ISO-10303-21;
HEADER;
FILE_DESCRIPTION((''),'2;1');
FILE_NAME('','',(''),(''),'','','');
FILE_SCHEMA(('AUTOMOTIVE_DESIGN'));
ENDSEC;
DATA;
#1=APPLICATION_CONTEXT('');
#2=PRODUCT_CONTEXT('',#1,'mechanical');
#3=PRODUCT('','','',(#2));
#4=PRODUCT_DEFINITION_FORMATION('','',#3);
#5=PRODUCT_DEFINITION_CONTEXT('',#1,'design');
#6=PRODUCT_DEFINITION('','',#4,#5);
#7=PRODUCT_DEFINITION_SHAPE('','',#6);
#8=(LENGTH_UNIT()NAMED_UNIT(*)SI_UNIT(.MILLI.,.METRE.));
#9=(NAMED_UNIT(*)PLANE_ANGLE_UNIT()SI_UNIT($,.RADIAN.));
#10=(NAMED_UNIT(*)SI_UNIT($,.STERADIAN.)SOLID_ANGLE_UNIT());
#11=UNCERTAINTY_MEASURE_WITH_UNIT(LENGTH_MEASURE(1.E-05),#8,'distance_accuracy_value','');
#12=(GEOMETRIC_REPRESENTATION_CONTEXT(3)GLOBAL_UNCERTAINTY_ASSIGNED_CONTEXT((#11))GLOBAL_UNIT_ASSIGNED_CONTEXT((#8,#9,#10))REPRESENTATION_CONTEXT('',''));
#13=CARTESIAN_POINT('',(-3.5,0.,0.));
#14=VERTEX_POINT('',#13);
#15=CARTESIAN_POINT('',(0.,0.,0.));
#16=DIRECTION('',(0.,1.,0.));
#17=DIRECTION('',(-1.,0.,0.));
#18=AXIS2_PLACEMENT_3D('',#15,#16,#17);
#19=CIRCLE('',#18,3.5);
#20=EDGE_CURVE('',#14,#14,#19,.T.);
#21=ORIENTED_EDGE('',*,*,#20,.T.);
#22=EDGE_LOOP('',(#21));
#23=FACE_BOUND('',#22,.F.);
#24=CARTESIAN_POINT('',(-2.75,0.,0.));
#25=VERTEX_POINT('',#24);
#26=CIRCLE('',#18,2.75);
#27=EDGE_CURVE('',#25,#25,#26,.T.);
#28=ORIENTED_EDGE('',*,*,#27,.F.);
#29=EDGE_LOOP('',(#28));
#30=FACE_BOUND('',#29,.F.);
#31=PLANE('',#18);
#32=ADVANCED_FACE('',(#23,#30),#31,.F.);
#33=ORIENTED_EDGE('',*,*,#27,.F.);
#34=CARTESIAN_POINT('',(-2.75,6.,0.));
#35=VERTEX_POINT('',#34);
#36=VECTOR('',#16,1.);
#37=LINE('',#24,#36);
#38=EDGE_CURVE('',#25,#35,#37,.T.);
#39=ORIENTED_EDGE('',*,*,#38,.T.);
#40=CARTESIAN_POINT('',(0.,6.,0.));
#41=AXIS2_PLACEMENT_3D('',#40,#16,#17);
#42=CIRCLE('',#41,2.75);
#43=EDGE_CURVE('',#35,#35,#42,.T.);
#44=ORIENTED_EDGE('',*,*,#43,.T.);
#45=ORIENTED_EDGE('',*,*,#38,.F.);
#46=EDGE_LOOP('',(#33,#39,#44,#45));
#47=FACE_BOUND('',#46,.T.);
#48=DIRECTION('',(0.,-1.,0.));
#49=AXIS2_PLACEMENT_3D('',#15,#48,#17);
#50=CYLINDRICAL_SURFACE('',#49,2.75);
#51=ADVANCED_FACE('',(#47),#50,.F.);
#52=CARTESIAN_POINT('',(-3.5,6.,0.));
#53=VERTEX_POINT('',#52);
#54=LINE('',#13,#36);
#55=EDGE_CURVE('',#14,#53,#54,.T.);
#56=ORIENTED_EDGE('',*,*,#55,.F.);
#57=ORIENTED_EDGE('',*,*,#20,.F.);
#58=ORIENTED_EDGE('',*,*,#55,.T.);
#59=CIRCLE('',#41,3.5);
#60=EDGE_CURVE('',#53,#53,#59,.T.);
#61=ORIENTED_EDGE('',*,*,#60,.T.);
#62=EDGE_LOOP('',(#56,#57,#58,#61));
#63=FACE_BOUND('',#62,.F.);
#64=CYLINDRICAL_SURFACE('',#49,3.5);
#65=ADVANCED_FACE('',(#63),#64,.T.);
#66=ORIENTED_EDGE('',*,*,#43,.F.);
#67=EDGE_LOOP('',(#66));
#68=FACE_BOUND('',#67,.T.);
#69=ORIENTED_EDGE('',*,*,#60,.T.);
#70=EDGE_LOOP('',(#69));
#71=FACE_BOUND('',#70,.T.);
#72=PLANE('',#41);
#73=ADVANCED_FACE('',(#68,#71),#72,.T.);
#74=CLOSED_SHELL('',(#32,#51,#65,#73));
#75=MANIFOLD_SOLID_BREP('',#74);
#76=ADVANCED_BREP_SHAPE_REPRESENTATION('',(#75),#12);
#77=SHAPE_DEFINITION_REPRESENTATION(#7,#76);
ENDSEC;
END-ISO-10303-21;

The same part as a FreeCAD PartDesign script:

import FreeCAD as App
import Part
import Sketcher

V = App.Vector
Q = App.Units.Quantity

doc = App.newDocument("Part")
body = doc.addObject("PartDesign::Body", "Body")

sketch1 = doc.addObject("Sketcher::SketchObject", "Sketch")
body.addObject(sketch1)
sketch1.AttachmentSupport = (doc.XZ_Plane, [""])
sketch1.MapMode = "FlatFace"
sketch1.addGeometry([
    Part.Circle(V(0, 0, 0), V(0, 0, 1), 3.5),
    Part.Circle(V(0, 0, 0), V(0, 0, 1), 2.8),
], False)
sketch1.addConstraint([
    Sketcher.Constraint("Coincident", 0, 3, -1, 1),
    Sketcher.Constraint("Coincident", 1, 3, -1, 1),
    Sketcher.Constraint("Diameter", 0, Q("7 mm")),
    Sketcher.Constraint("Diameter", 1, Q("5.5 mm")),
])
pad1 = doc.addObject("PartDesign::Pad", "Pad")
body.addObject(pad1)
pad1.Profile = sketch1
pad1.Length = 6
pad1.Reversed = True

doc.recompute()
